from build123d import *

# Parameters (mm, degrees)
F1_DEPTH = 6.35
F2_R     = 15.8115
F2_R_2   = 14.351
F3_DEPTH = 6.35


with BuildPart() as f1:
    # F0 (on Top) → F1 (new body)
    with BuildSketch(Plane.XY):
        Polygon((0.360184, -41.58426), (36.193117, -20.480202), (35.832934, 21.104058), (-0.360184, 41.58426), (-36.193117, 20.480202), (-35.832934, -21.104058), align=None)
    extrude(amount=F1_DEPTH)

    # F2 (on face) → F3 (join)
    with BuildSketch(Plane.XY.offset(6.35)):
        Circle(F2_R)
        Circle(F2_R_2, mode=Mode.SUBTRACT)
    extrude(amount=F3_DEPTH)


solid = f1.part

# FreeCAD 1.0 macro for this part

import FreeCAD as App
import Part
import Sketcher
Q = App.Units.Quantity

doc = App.newDocument("Part")
body = doc.addObject("PartDesign::Body", "Body")

sketch1 = doc.addObject("Sketcher::SketchObject", "Sketch")
body.addObject(sketch1)
sketch1.AttachmentSupport = (doc.XY_Plane, [""])
sketch1.MapMode = "FlatFace"
sketch1.addGeometry([
    Part.LineSegment(App.Vector(0.360184, -41.58426, 0), App.Vector(36.193117, -20.480202, 0)),
    Part.LineSegment(App.Vector(36.193117, -20.480202, 0), App.Vector(35.832934, 21.104058, 0)),
    Part.LineSegment(App.Vector(35.832934, 21.104058, 0), App.Vector(-0.360184, 41.58426, 0)),
    Part.LineSegment(App.Vector(-0.360184, 41.58426, 0), App.Vector(-36.193117, 20.480202, 0)),
    Part.LineSegment(App.Vector(-36.193117, 20.480202, 0), App.Vector(-35.832934, -21.104058, 0)),
    Part.LineSegment(App.Vector(-35.832934, -21.104058, 0), App.Vector(0.360184, -41.58426, 0)),
], False)
sketch1.addConstraint([
    Sketcher.Constraint("Coincident", 0, 2, 1, 1),
    Sketcher.Constraint("Coincident", 1, 2, 2, 1),
    Sketcher.Constraint("Coincident", 2, 2, 3, 1),
    Sketcher.Constraint("Coincident", 3, 2, 4, 1),
    Sketcher.Constraint("Coincident", 4, 2, 5, 1),
    Sketcher.Constraint("Coincident", 5, 2, 0, 1),
    Sketcher.Constraint("Symmetric", 0, 2, 3, 2, -1, 1),
    Sketcher.Constraint("Symmetric", 1, 2, 4, 2, -1, 1),
    Sketcher.Constraint("Symmetric", 2, 2, 5, 2, -1, 1),
    Sketcher.Constraint("Equal", 0, 1),
    Sketcher.Constraint("Equal", 1, 2),
    Sketcher.Constraint("DistanceY", 0, 2, -1, 1, 20.480202),
    Sketcher.Constraint("DistanceX", 2, 2, 0, 2, 36.553301),
    Sketcher.Constraint("Distance", 0, 41.585819),
    Sketcher.Constraint("DistanceY", -1, 1, 2, 2, 41.58426),
])
pad1 = doc.addObject("PartDesign::Pad", "Pad")
body.addObject(pad1)
pad1.Profile = sketch1
pad1.Length = Q("0.25 in")

sketch2 = doc.addObject("Sketcher::SketchObject", "Sketch001")
body.addObject(sketch2)
sketch2.AttachmentSupport = (doc.XY_Plane, [""])
sketch2.MapMode = "FlatFace"
sketch2.AttachmentOffset = App.Placement(App.Vector(0, 0, 0.25 * 25.4), App.Rotation())
sketch2.addGeometry([
    Part.Circle(App.Vector(0, 0, 0), App.Vector(0, 0, 1), 15.8115),
    Part.Circle(App.Vector(0, 0, 0), App.Vector(0, 0, 1), 14.351),
], False)
sketch2.addConstraint([
    Sketcher.Constraint("Coincident", 0, 3, -1, 1),
    Sketcher.Constraint("Coincident", 1, 3, -1, 1),
    Sketcher.Constraint("Diameter", 1, Q("1.13 in")),
    Sketcher.Constraint("Diameter", 0, Q("1.245 in")),
])
pad2 = doc.addObject("PartDesign::Pad", "Pad001")
body.addObject(pad2)
pad2.Profile = sketch2
pad2.Length = Q("0.25 in")

doc.recompute()
